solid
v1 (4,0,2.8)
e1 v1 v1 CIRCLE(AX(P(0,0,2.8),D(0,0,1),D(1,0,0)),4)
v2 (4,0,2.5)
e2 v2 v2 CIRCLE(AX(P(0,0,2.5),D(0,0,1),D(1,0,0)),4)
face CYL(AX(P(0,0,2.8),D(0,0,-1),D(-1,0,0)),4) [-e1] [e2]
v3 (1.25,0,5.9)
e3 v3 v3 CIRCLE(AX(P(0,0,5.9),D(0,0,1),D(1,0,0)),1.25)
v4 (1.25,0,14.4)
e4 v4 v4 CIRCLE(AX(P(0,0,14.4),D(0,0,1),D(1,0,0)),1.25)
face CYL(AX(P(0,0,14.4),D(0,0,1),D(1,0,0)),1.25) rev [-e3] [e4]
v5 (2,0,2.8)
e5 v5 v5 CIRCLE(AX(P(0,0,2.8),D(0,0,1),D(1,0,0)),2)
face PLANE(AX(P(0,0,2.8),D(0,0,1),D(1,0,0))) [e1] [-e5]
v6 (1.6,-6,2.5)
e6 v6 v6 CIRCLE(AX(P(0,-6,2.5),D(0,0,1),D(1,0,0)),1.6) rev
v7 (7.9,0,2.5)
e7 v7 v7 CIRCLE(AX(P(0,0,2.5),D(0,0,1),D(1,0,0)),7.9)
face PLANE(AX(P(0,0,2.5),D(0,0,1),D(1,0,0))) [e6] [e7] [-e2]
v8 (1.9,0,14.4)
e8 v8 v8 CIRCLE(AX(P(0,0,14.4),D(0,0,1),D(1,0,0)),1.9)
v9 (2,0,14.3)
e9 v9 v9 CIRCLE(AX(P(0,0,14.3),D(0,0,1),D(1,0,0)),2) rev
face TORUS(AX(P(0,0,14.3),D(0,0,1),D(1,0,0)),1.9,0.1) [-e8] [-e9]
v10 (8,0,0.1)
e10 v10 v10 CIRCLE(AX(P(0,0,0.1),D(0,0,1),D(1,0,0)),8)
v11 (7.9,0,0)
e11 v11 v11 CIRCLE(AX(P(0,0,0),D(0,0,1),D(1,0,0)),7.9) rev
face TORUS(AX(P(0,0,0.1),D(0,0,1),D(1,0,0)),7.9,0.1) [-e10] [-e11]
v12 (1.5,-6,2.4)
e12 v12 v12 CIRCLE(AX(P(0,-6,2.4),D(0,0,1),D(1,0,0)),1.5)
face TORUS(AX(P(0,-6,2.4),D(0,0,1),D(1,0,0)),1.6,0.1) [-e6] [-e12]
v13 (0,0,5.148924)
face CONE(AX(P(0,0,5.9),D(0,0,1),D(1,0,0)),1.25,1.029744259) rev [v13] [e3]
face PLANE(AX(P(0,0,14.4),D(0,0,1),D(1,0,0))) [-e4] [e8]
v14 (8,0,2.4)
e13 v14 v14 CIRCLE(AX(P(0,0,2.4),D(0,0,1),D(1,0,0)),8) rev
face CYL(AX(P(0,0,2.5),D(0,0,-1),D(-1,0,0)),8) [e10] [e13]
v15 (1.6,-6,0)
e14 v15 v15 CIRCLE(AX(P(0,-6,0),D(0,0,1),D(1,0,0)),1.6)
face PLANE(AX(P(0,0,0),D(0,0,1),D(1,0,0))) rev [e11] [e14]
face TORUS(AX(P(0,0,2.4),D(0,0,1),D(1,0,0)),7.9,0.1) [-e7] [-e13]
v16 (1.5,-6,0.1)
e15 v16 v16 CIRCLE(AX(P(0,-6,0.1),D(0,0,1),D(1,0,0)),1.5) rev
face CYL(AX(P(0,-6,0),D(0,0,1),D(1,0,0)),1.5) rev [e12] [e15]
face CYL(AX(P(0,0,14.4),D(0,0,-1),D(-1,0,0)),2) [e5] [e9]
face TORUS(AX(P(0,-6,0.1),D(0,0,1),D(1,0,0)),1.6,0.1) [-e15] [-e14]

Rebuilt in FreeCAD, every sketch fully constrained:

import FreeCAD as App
import Part
import Sketcher

V = App.Vector


def edges_at(feature, points):
    """Names of the edges that pass closest to the given points."""
    edges = feature.Shape.Edges
    near = lambda p: min(range(len(edges)), key=lambda i: edges[i].distToShape(Part.Vertex(*p))[0])
    return sorted({f"Edge{near(p) + 1}" for p in points})

doc = App.newDocument("Part")
body = doc.addObject("PartDesign::Body", "Body")

# Sketch on XY plane
sketch1 = body.newObject("Sketcher::SketchObject", "Sketch")
sketch1.AttachmentSupport = (doc.getObject("XY_Plane"), [""])
sketch1.MapMode = "FlatFace"
sketch1.addGeometry(Part.Circle(V(0, 0, 0), V(0, 0, 1), 8), False)
sketch1.addConstraint([
    Sketcher.Constraint("Coincident", 0, 3, -1, 1),
    Sketcher.Constraint("Diameter", 0, 16.0),
])
pad1 = body.newObject("PartDesign::Pad", "Pad")
pad1.Profile = sketch1
pad1.Length = 2.5

# Sketch on XY plane
sketch2 = body.newObject("Sketcher::SketchObject", "Sketch001")
sketch2.AttachmentSupport = (doc.getObject("XY_Plane"), [""])
sketch2.MapMode = "FlatFace"
sketch2.AttachmentOffset = App.Placement(V(0, 0, 2.5), App.Rotation())
sketch2.addGeometry(Part.Circle(V(0, 0, 0), V(0, 0, 1), 4), False)
sketch2.addConstraint([
    Sketcher.Constraint("Coincident", 0, 3, -1, 1),
    Sketcher.Constraint("Diameter", 0, 8.0),
])
pad2 = body.newObject("PartDesign::Pad", "Pad001")
pad2.Profile = sketch2
pad2.Length = 0.3

# Sketch on XY plane
sketch3 = body.newObject("Sketcher::SketchObject", "Sketch002")
sketch3.AttachmentSupport = (doc.getObject("XY_Plane"), [""])
sketch3.MapMode = "FlatFace"
sketch3.AttachmentOffset = App.Placement(V(0, 0, 2.8), App.Rotation())
sketch3.addGeometry(Part.Circle(V(0, 0, 0), V(0, 0, 1), 2), False)
sketch3.addConstraint([
    Sketcher.Constraint("Coincident", 0, 3, -1, 1),
    Sketcher.Constraint("Diameter", 0, 4.0),
])
pad3 = body.newObject("PartDesign::Pad", "Pad002")
pad3.Profile = sketch3
pad3.Length = 11.6

# Sketch on XY plane
sketch4 = body.newObject("Sketcher::SketchObject", "Sketch003")
sketch4.AttachmentSupport = (doc.getObject("XY_Plane"), [""])
sketch4.MapMode = "FlatFace"
sketch4.AttachmentOffset = App.Placement(V(0, 0, 14.4), App.Rotation())
sketch4.addGeometry(Part.Circle(V(0, 0, 0), V(0, 0, 1), 1.2), False)
sketch4.addConstraint([
    Sketcher.Constraint("Coincident", 0, 3, -1, 1),
    Sketcher.Constraint("Diameter", 0, 2.5),
])
doc.recompute()
hole = body.newObject("PartDesign::Hole", "Hole")
hole.Profile = sketch4
hole.ThreadType = "None"
hole.Diameter = 2.5
hole.DepthType = "Dimension"
hole.Depth = 8.5
hole.DrillPoint = "Angled"
hole.DrillPointAngle = 118

# Sketch on XY plane
sketch5 = body.newObject("Sketcher::SketchObject", "Sketch004")
sketch5.AttachmentSupport = (doc.getObject("XY_Plane"), [""])
sketch5.MapMode = "FlatFace"
sketch5.AttachmentOffset = App.Placement(V(0, 0, 2.5), App.Rotation())
sketch5.addGeometry(Part.Circle(V(0, -6, 0), V(0, 0, 1), 1.5), False)
sketch5.addConstraint([
    Sketcher.Constraint("PointOnObject", 0, 3, -2),
    Sketcher.Constraint("Diameter", 0, 3.0),
    Sketcher.Constraint("DistanceY", 0, 3, -1, 1, 6.0),
])
pocket1 = body.newObject("PartDesign::Pocket", "Pocket")
pocket1.Profile = sketch5
pocket1.Type = "ThroughAll"
pocket1.Midplane = True
doc.recompute()

fillet = body.newObject("PartDesign::Fillet", "Fillet")
fillet.Base = (pocket1, edges_at(pocket1, [
    (-2, 0, 14.4),
    (-8, 0, 0),
    (-1.5, -6, 2.5),
    (-1.5, -6, 0),
    (-8, 0, 2.5),
]))
fillet.Radius = 0.1

doc.recompute()
